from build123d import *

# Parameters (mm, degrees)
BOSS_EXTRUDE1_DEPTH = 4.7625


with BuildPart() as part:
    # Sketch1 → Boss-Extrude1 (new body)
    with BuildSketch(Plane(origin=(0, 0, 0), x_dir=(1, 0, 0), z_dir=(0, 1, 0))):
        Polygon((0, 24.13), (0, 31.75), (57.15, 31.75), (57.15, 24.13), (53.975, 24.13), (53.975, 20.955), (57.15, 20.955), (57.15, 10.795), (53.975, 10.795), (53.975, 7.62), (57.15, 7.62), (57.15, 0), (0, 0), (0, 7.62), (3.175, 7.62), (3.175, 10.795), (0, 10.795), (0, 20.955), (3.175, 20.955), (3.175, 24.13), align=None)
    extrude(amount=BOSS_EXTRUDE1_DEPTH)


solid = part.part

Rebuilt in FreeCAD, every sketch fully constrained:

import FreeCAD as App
import Part
import Sketcher
Q = App.Units.Quantity

doc = App.newDocument("Part")
body = doc.addObject("PartDesign::Body", "Body")

# Sketch on XZ plane
sketch1 = body.newObject("Sketcher::SketchObject", "Sketch")
sketch1.AttachmentSupport = (doc.getObject("XZ_Plane"), [""])
sketch1.MapMode = "FlatFace"
sketch1.addGeometry([
    Part.LineSegment(App.Vector(0, -31.75, 0), App.Vector(0, -24.13, 0)),  # 0
    Part.LineSegment(App.Vector(0, -24.13, 0), App.Vector(3.175, -24.13, 0)),  # 1
    Part.LineSegment(App.Vector(3.175, -24.13, 0), App.Vector(3.175, -20.955, 0)),  # 2
    Part.LineSegment(App.Vector(3.175, -20.955, 0), App.Vector(0, -20.955, 0)),  # 3
    Part.LineSegment(App.Vector(0, -20.955, 0), App.Vector(0, -10.795, 0)),  # 4
    Part.LineSegment(App.Vector(0, -10.795, 0), App.Vector(3.175, -10.795, 0)),  # 5
    Part.LineSegment(App.Vector(3.175, -10.795, 0), App.Vector(3.175, -7.62, 0)),  # 6
    Part.LineSegment(App.Vector(3.175, -7.62, 0), App.Vector(0, -7.62, 0)),  # 7
    Part.LineSegment(App.Vector(0, -7.62, 0), App.Vector(0, 0, 0)),  # 8
    Part.LineSegment(App.Vector(0, 0, 0), App.Vector(57.15, 0, 0)),  # 9
    Part.LineSegment(App.Vector(57.15, 0, 0), App.Vector(57.15, -7.62, 0)),  # 10
    Part.LineSegment(App.Vector(57.15, -7.62, 0), App.Vector(53.975, -7.62, 0)),  # 11
    Part.LineSegment(App.Vector(53.975, -7.62, 0), App.Vector(53.975, -10.795, 0)),  # 12
    Part.LineSegment(App.Vector(53.975, -10.795, 0), App.Vector(57.15, -10.795, 0)),  # 13
    Part.LineSegment(App.Vector(57.15, -10.795, 0), App.Vector(57.15, -20.955, 0)),  # 14
    Part.LineSegment(App.Vector(57.15, -20.955, 0), App.Vector(53.975, -20.955, 0)),  # 15
    Part.LineSegment(App.Vector(53.975, -20.955, 0), App.Vector(53.975, -24.13, 0)),  # 16
    Part.LineSegment(App.Vector(53.975, -24.13, 0), App.Vector(57.15, -24.13, 0)),  # 17
    Part.LineSegment(App.Vector(57.15, -24.13, 0), App.Vector(57.15, -31.75, 0)),  # 18
    Part.LineSegment(App.Vector(57.15, -31.75, 0), App.Vector(0, -31.75, 0)),  # 19
], False)
sketch1.addConstraint([
    Sketcher.Constraint("Coincident", 0, 2, 1, 1),
    Sketcher.Constraint("Coincident", 1, 2, 2, 1),
    Sketcher.Constraint("Coincident", 2, 2, 3, 1),
    Sketcher.Constraint("Coincident", 3, 2, 4, 1),
    Sketcher.Constraint("Coincident", 4, 2, 5, 1),
    Sketcher.Constraint("Coincident", 5, 2, 6, 1),
    Sketcher.Constraint("Coincident", 6, 2, 7, 1),
    Sketcher.Constraint("Coincident", 7, 2, 8, 1),
    Sketcher.Constraint("Coincident", 8, 2, 9, 1),
    Sketcher.Constraint("Coincident", 9, 2, 10, 1),
    Sketcher.Constraint("Coincident", 10, 2, 11, 1),
    Sketcher.Constraint("Coincident", 11, 2, 12, 1),
    Sketcher.Constraint("Coincident", 12, 2, 13, 1),
    Sketcher.Constraint("Coincident", 13, 2, 14, 1),
    Sketcher.Constraint("Coincident", 14, 2, 15, 1),
    Sketcher.Constraint("Coincident", 15, 2, 16, 1),
    Sketcher.Constraint("Coincident", 16, 2, 17, 1),
    Sketcher.Constraint("Coincident", 17, 2, 18, 1),
    Sketcher.Constraint("Coincident", 18, 2, 19, 1),
    Sketcher.Constraint("Coincident", 19, 2, 0, 1),
    Sketcher.Constraint("Vertical", 0),
    Sketcher.Constraint("Horizontal", 1),
    Sketcher.Constraint("Vertical", 2),
    Sketcher.Constraint("Horizontal", 3),
    Sketcher.Constraint("Vertical", 4),
    Sketcher.Constraint("Horizontal", 5),
    Sketcher.Constraint("Vertical", 6),
    Sketcher.Constraint("Horizontal", 7),
    Sketcher.Constraint("Vertical", 8),
    Sketcher.Constraint("Horizontal", 9),
    Sketcher.Constraint("Vertical", 10),
    Sketcher.Constraint("Horizontal", 11),
    Sketcher.Constraint("Vertical", 12),
    Sketcher.Constraint("Horizontal", 13),
    Sketcher.Constraint("Vertical", 14),
    Sketcher.Constraint("Horizontal", 15),
    Sketcher.Constraint("Vertical", 16),
    Sketcher.Constraint("Horizontal", 17),
    Sketcher.Constraint("Vertical", 18),
    Sketcher.Constraint("Horizontal", 19),
    Sketcher.Constraint("Coincident", 8, 2, -1, 1),
    Sketcher.Constraint("PointOnObject", 0, 2, -2),
    Sketcher.Constraint("PointOnObject", 3, 2, -2),
    Sketcher.Constraint("Horizontal", 7, 2, 10, 2),
    Sketcher.Constraint("Horizontal", 5, 2, 12, 2),
    Sketcher.Constraint("Horizontal", 3, 2, 14, 2),
    Sketcher.Constraint("Horizontal", 1, 2, 16, 2),
    Sketcher.Constraint("Vertical", 2, 2, 5, 2),
    Sketcher.Constraint("Vertical", 10, 2, 13, 2),
    Sketcher.Constraint("Vertical", 12, 2, 15, 2),
    Sketcher.Constraint("Vertical", 14, 2, 17, 2),
    Sketcher.Constraint("Equal", 7, 11),
    Sketcher.Constraint("Equal", 17, 2),
    Sketcher.Constraint("Equal", 2, 6),
    Sketcher.Constraint("Equal", 0, 8),
    Sketcher.Constraint("DistanceY", 0, 1, 0, 2, Q("0.3 in")),
    Sketcher.Constraint("DistanceY", 4, 1, 4, 2, Q("0.4 in")),
    Sketcher.Constraint("DistanceX", 6, 2, 11, 2, Q("2 in")),
    Sketcher.Constraint("DistanceX", 9, 1, 9, 2, Q("2.25 in")),
])
pad1 = body.newObject("PartDesign::Pad", "Pad")
pad1.Profile = sketch1
pad1.Length = Q("0.1875 in")
pad1.Reversed = True

doc.recompute()
